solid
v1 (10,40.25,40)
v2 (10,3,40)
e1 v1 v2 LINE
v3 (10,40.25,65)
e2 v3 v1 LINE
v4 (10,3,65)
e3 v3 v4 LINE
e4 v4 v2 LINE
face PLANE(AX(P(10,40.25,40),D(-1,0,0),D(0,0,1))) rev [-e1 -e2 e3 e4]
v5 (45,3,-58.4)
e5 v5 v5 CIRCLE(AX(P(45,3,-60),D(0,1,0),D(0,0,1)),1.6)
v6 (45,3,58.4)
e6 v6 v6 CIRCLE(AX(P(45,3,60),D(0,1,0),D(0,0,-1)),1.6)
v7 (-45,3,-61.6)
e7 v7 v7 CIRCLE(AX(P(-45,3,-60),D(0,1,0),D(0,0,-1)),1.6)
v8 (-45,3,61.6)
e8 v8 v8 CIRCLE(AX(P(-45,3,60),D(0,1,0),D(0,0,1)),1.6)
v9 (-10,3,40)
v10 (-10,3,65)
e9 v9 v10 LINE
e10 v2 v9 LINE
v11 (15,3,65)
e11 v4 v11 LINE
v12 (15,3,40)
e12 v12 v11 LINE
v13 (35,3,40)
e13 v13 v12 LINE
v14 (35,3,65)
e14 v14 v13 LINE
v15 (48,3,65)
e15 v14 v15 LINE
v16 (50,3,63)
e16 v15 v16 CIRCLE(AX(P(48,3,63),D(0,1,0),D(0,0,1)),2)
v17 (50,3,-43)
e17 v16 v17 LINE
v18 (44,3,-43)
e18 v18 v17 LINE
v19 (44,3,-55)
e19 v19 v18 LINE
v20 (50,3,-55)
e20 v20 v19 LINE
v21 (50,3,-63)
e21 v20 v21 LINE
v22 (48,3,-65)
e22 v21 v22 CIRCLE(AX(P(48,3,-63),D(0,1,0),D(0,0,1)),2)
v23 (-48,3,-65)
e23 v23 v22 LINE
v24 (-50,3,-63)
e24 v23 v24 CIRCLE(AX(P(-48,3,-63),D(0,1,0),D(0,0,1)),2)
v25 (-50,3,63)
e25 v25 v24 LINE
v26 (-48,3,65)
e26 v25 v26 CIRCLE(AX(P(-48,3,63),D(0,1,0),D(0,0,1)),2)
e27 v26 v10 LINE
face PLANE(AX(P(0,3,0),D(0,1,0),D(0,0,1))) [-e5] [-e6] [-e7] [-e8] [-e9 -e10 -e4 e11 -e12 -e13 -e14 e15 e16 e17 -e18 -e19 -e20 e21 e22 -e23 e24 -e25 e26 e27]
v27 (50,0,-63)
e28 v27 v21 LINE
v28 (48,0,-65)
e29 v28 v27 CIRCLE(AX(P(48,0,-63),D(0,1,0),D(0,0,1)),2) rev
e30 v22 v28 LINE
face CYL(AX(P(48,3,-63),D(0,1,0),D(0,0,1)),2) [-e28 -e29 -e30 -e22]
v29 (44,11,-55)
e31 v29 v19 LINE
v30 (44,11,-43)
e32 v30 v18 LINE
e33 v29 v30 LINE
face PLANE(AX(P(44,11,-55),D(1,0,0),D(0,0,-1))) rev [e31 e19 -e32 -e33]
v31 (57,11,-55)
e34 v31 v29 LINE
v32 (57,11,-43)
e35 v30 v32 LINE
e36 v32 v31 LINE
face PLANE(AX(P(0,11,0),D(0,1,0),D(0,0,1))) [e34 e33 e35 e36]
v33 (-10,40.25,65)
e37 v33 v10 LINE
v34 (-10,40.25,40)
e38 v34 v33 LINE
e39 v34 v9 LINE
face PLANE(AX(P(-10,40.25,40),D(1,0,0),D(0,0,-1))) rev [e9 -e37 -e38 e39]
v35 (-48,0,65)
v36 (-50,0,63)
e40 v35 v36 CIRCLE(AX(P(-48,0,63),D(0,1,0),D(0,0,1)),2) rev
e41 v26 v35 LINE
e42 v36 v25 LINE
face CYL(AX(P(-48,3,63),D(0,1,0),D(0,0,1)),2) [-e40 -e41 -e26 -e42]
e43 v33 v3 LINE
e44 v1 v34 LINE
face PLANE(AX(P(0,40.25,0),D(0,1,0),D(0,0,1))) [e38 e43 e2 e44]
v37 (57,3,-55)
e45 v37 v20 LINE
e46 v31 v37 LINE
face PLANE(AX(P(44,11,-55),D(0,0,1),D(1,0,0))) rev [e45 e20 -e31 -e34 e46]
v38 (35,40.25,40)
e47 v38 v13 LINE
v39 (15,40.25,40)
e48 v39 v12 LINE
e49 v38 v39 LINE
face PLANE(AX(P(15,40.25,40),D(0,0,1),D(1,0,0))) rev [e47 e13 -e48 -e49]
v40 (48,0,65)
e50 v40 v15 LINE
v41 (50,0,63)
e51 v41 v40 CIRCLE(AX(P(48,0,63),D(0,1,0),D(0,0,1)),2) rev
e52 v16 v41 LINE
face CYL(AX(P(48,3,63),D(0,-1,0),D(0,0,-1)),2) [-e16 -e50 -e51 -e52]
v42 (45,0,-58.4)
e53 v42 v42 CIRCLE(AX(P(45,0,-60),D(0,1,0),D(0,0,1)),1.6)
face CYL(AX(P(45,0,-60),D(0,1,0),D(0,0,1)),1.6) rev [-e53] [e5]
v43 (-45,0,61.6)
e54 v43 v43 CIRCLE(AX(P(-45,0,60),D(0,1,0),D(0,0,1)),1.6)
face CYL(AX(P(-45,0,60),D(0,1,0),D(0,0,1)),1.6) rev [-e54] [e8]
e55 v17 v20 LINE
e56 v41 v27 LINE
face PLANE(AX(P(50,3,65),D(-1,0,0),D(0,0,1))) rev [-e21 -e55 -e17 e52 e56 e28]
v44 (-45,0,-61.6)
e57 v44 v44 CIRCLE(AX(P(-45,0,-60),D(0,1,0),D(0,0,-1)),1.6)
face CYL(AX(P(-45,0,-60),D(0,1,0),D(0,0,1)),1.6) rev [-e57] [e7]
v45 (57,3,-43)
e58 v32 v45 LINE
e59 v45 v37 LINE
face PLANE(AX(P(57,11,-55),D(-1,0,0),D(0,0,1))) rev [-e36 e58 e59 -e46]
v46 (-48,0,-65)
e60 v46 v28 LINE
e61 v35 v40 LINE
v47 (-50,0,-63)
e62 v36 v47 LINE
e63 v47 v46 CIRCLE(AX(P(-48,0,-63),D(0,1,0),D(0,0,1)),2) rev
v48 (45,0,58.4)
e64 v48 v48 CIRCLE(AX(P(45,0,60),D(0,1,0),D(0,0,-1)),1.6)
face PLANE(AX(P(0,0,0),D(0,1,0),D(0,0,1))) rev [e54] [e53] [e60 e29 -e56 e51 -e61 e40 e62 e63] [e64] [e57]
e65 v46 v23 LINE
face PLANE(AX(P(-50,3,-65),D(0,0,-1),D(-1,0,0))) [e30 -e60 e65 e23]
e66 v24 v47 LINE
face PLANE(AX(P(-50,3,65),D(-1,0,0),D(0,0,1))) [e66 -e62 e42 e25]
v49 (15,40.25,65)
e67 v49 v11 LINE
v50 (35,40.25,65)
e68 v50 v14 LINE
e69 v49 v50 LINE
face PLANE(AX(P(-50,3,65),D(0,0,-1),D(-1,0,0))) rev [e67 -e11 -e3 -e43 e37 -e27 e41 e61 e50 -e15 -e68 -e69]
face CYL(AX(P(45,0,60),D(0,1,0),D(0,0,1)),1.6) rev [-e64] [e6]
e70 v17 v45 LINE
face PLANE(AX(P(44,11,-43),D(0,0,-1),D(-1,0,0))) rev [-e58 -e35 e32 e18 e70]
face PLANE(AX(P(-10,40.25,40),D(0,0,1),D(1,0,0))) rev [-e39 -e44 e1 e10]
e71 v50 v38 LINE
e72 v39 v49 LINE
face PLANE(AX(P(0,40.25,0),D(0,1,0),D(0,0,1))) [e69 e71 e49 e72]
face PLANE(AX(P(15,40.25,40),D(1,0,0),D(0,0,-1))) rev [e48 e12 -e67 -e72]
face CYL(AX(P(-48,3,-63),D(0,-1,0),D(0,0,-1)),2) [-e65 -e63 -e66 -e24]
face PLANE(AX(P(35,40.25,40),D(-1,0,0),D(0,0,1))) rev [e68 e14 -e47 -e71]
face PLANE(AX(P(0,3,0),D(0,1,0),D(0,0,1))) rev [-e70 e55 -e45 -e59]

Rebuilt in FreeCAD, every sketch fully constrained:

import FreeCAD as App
import Part
import Sketcher

V = App.Vector
Q = App.Units.Quantity


def edges_at(feature, points):
    """Names of the edges that pass closest to the given points."""
    edges = feature.Shape.Edges
    near = lambda p: min(range(len(edges)), key=lambda i: edges[i].distToShape(Part.Vertex(*p))[0])
    return sorted({f"Edge{near(p) + 1}" for p in points})


def add_polygon(sketch, points):
    """Adds a closed chain of lines whose ends are joined by coincident constraints."""
    first, n = sketch.GeometryCount, len(points)
    for a, b in zip(points, points[1:] + points[:1]):
        sketch.addGeometry(Part.LineSegment(App.Vector(*a, 0), App.Vector(*b, 0)), False)
    for i in range(n):
        sketch.addConstraint(Sketcher.Constraint("Coincident", first + i, 2, first + (i + 1) % n, 1))

doc = App.newDocument("Part")
body = doc.addObject("PartDesign::Body", "Body")

# Sketch on XZ plane
sketch1 = doc.addObject("Sketcher::SketchObject", "Sketch")
body.addObject(sketch1)
sketch1.AttachmentSupport = (doc.XZ_Plane, [""])
sketch1.MapMode = "FlatFace"
add_polygon(sketch1, [(-50, -65), (-50, 65), (50, 65), (50, -65)])  # lines 0-3
sketch1.addConstraint([
    Sketcher.Constraint("Vertical", 0),
    Sketcher.Constraint("Horizontal", 1),
    Sketcher.Constraint("Vertical", 2),
    Sketcher.Constraint("Horizontal", 3),
    Sketcher.Constraint("Symmetric", 0, 2, 2, 2, -1, 1),
    Sketcher.Constraint("DistanceX", 1, 1, 1, 2, Q("100 mm")),
    Sketcher.Constraint("DistanceY", 0, 1, 0, 2, Q("130 mm")),
])
pad1 = doc.addObject("PartDesign::Pad", "Pad")
body.addObject(pad1)
pad1.Profile = sketch1
pad1.Length = 3
pad1.Reversed = True

# Sketch on XZ plane
sketch2 = doc.addObject("Sketcher::SketchObject", "Sketch001")
body.addObject(sketch2)
sketch2.AttachmentSupport = (doc.XZ_Plane, [""])
sketch2.MapMode = "FlatFace"
sketch2.AttachmentOffset = App.Placement(V(0, 0, -3), App.Rotation())
add_polygon(sketch2, [(-10, 40), (-10, 65), (10, 65), (10, 40)])  # lines 0-3
add_polygon(sketch2, [(15, 40), (15, 65), (35, 65), (35, 40)])  # lines 4-7
sketch2.addConstraint([
    Sketcher.Constraint("Vertical", 0),
    Sketcher.Constraint("Horizontal", 1),
    Sketcher.Constraint("Vertical", 2),
    Sketcher.Constraint("Horizontal", 3),
    Sketcher.Constraint("Vertical", 4),
    Sketcher.Constraint("Horizontal", 5),
    Sketcher.Constraint("Vertical", 6),
    Sketcher.Constraint("Horizontal", 7),
    Sketcher.Constraint("Horizontal", 1, 2, 4, 2),
    Sketcher.Constraint("Horizontal", 3, 2, 6, 2),
    Sketcher.Constraint("Equal", 3, 5),
    Sketcher.Constraint("DistanceX", 1, 1, 1, 2, Q("20 mm")),
    Sketcher.Constraint("DistanceY", 0, 1, 0, 2, Q("25 mm")),
    Sketcher.Constraint("DistanceX", 0, 2, -1, 1, Q("10 mm")),
    Sketcher.Constraint("DistanceY", -1, 1, 0, 2, Q("65 mm")),
    Sketcher.Constraint("DistanceX", -1, 1, 4, 2, Q("15 mm")),
])
pad2 = doc.addObject("PartDesign::Pad", "Pad001")
body.addObject(pad2)
pad2.Profile = sketch2
pad2.Length = 37.25
pad2.Reversed = True
doc.recompute()

fillet = doc.addObject("PartDesign::Fillet", "Fillet")
body.addObject(fillet)
fillet.Base = (pad2, edges_at(pad2, [
    (-50, 1.5, 65),
    (-50, 1.5, -65),
    (50, 1.5, -65),
    (50, 1.5, 65),
]))
fillet.Radius = 2

# Sketch on XZ plane
sketch3 = doc.addObject("Sketcher::SketchObject", "Sketch002")
body.addObject(sketch3)
sketch3.AttachmentSupport = (doc.XZ_Plane, [""])
sketch3.MapMode = "FlatFace"
sketch3.AttachmentOffset = App.Placement(V(0, 0, -3), App.Rotation())
add_polygon(sketch3, [(44, -55), (44, -43), (57, -43), (57, -55)])  # lines 0-3
sketch3.addConstraint([
    Sketcher.Constraint("Vertical", 0),
    Sketcher.Constraint("Horizontal", 1),
    Sketcher.Constraint("Vertical", 2),
    Sketcher.Constraint("Horizontal", 3),
    Sketcher.Constraint("DistanceX", 1, 1, 1, 2, Q("13 mm")),
    Sketcher.Constraint("DistanceY", 0, 1, 0, 2, Q("12 mm")),
    Sketcher.Constraint("DistanceX", -1, 1, 0, 2, Q("44 mm")),
    Sketcher.Constraint("DistanceY", 0, 2, -1, 1, Q("43 mm")),
])
pad3 = doc.addObject("PartDesign::Pad", "Pad002")
body.addObject(pad3)
pad3.Profile = sketch3
pad3.Length = 8
pad3.Reversed = True

# Sketch on XZ plane
sketch4 = doc.addObject("Sketcher::SketchObject", "Sketch003")
body.addObject(sketch4)
sketch4.AttachmentSupport = (doc.XZ_Plane, [""])
sketch4.MapMode = "FlatFace"
sketch4.AttachmentOffset = App.Placement(V(0, 0, -3), App.Rotation())
sketch4.addGeometry([
    Part.Circle(V(-45, 60, 0), V(0, 0, 1), 1.6),
    Part.Circle(V(-45, -60, 0), V(0, 0, 1), 1.6),
    Part.Circle(V(45, -60, 0), V(0, 0, 1), 1.6),
    Part.Circle(V(45, 60, 0), V(0, 0, 1), 1.6),
], False)
sketch4.addConstraint([
    Sketcher.Constraint("Equal", 0, 1),
    Sketcher.Constraint("Equal", 1, 2),
    Sketcher.Constraint("Equal", 2, 3),
    Sketcher.Constraint("Symmetric", 0, 3, 2, 3, -1, 1),
    Sketcher.Constraint("Symmetric", 1, 3, 3, 3, -1, 1),
    Sketcher.Constraint("Symmetric", 1, 3, 2, 3, -2),
    Sketcher.Constraint("Diameter", 0, Q("3.2 mm")),
    Sketcher.Constraint("DistanceX", 0, 3, -1, 1, Q("45 mm")),
    Sketcher.Constraint("DistanceY", -1, 1, 0, 3, Q("60 mm")),
])
pocket1 = doc.addObject("PartDesign::Pocket", "Pocket")
body.addObject(pocket1)
pocket1.Profile = sketch4
pocket1.Type = "ThroughAll"
pocket1.Reversed = True

doc.recompute()
